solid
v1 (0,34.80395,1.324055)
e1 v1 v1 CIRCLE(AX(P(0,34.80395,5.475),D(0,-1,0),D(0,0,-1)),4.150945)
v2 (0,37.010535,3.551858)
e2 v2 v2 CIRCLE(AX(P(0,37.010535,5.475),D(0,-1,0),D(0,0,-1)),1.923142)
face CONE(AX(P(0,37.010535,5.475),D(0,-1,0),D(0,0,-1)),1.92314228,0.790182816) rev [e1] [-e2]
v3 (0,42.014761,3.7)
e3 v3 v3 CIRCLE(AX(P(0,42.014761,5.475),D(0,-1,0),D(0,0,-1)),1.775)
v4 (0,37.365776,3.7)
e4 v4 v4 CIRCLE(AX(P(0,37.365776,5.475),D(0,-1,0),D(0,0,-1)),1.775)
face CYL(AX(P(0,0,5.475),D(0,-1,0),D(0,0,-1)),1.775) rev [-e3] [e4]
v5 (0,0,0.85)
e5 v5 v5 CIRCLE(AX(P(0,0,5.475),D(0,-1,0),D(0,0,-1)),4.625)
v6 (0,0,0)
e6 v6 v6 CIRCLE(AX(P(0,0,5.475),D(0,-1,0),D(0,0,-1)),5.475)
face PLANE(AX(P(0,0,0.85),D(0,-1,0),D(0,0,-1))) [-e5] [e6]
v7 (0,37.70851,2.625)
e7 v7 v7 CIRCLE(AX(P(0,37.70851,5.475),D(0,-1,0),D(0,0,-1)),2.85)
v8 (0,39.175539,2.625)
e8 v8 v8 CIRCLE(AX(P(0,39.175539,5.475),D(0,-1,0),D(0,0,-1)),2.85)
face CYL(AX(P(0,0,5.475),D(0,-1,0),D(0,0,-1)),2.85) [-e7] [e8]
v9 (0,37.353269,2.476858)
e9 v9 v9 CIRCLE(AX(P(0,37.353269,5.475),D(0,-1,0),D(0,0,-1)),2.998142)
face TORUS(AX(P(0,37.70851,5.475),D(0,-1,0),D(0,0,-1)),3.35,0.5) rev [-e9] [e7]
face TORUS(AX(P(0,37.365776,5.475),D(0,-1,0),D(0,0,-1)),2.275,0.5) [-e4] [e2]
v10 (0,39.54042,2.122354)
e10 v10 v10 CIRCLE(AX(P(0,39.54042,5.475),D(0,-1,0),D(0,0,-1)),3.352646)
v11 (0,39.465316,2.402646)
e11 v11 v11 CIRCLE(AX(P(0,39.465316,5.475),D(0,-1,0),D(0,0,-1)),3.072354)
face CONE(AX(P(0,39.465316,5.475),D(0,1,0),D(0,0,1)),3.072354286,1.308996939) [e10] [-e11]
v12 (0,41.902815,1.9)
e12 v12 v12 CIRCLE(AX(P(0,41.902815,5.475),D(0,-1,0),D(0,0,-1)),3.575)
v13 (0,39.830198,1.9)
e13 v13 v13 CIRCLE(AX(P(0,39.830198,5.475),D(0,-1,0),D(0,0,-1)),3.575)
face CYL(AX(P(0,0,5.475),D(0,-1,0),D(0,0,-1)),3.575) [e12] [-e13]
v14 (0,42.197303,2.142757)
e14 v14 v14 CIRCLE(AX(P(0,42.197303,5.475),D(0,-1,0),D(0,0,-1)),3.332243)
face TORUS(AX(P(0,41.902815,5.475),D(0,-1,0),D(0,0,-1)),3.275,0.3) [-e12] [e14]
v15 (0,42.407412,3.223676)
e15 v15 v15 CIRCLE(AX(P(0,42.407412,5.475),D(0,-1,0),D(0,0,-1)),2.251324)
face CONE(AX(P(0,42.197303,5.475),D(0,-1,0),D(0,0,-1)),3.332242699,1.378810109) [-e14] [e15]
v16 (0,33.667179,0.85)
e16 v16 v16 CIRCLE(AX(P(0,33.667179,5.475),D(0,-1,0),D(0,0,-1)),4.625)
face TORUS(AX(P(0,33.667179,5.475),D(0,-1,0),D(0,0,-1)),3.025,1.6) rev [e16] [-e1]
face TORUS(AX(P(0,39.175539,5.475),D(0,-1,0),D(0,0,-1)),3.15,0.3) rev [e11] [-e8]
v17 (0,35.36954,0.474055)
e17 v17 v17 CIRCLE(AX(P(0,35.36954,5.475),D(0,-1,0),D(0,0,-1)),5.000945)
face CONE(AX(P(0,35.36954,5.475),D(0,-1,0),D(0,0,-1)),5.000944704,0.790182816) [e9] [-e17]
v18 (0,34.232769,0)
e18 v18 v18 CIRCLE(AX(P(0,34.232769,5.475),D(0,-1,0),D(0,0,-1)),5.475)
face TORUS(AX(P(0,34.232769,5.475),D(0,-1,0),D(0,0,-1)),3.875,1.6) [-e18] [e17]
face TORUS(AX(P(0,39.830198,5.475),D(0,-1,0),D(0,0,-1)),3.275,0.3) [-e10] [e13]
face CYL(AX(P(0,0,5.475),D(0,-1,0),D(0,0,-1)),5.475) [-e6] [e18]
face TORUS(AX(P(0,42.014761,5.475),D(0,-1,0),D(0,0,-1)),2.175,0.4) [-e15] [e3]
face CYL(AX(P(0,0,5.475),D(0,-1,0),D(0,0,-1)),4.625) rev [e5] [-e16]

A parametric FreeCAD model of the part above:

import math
import FreeCAD as App
import Part
import Sketcher

V = App.Vector
Q = App.Units.Quantity

doc = App.newDocument("Part")
body = doc.addObject("PartDesign::Body", "Body")

# Sketch on YZ plane
sketch1 = body.newObject("Sketcher::SketchObject", "Sketch")
sketch1.AttachmentSupport = (doc.getObject("YZ_Plane"), [""])
sketch1.MapMode = "FlatFace"
sketch1.addGeometry(Part.LineSegment(V(0, 0, 0), V(34.23, 0, 0)), False)
sketch1.addGeometry(Part.ArcOfCircle(Part.Circle(V(34.23, 1.6, 0), V(0, 0, 1), 1.6), math.radians(-90), math.radians(-45)), False)
sketch1.addGeometry(Part.LineSegment(V(35.37, 0.47, 0), V(37.35, 2.48, 0)), False)
sketch1.addGeometry(Part.ArcOfCircle(Part.Circle(V(37.71, 2.13, 0), V(0, 0, 1), 0.5), math.radians(90), math.radians(135)), False)
sketch1.addGeometry(Part.LineSegment(V(37.71, 2.62, 0), V(39.18, 2.62, 0)), False)
sketch1.addGeometry(Part.ArcOfCircle(Part.Circle(V(39.18, 2.33, 0), V(0, 0, 1), 0.3), math.radians(15), math.radians(90)), False)
sketch1.addGeometry(Part.LineSegment(V(39.47, 2.4, 0), V(39.54, 2.12, 0)), False)
sketch1.addGeometry(Part.ArcOfCircle(Part.Circle(V(39.83, 2.2, 0), V(0, 0, 1), 0.3), math.radians(-165), math.radians(-90)), False)
sketch1.addGeometry(Part.LineSegment(V(39.83, 1.9, 0), V(41.9, 1.9, 0)), False)
sketch1.addGeometry(Part.ArcOfCircle(Part.Circle(V(41.9, 2.2, 0), V(0, 0, 1), 0.3), math.radians(-90), math.radians(-11)), False)
sketch1.addGeometry(Part.LineSegment(V(42.2, 2.14, 0), V(42.41, 3.22, 0)), False)
sketch1.addGeometry(Part.ArcOfCircle(Part.Circle(V(42.01, 3.3, 0), V(0, 0, 1), 0.4), math.radians(-11), math.radians(90)), False)
sketch1.addGeometry(Part.LineSegment(V(42.01, 3.7, 0), V(37.37, 3.7, 0)), False)
sketch1.addGeometry(Part.ArcOfCircle(Part.Circle(V(37.37, 3.2, 0), V(0, 0, 1), 0.5), math.radians(90), math.radians(135)), False)
sketch1.addGeometry(Part.LineSegment(V(37.01, 3.55, 0), V(34.8, 1.32, 0)), False)
sketch1.addGeometry(Part.ArcOfCircle(Part.Circle(V(33.67, 2.45, 0), V(0, 0, 1), 1.6), math.radians(-90), math.radians(-45)), False)
sketch1.addGeometry(Part.LineSegment(V(33.67, 0.85, 0), V(0, 0.85, 0)), False)
sketch1.addGeometry(Part.LineSegment(V(0, 0.85, 0), V(0, 0, 0)), False)
sketch1.addGeometry(Part.LineSegment(V(0, 5.47, 0), V(42.41, 5.47, 0)), True)  # axis
sketch1.addConstraint(Sketcher.Constraint("Tangent", 0, 2, 1, 1))
sketch1.addConstraint(Sketcher.Constraint("Tangent", 1, 2, 2, 1))
sketch1.addConstraint(Sketcher.Constraint("Tangent", 2, 2, 3, 2))
sketch1.addConstraint(Sketcher.Constraint("Tangent", 3, 1, 4, 1))
sketch1.addConstraint(Sketcher.Constraint("Tangent", 4, 2, 5, 2))
sketch1.addConstraint(Sketcher.Constraint("Tangent", 5, 1, 6, 1))
sketch1.addConstraint(Sketcher.Constraint("Tangent", 6, 2, 7, 1))
sketch1.addConstraint(Sketcher.Constraint("Tangent", 7, 2, 8, 1))
sketch1.addConstraint(Sketcher.Constraint("Tangent", 8, 2, 9, 1))
sketch1.addConstraint(Sketcher.Constraint("Tangent", 9, 2, 10, 1))
sketch1.addConstraint(Sketcher.Constraint("Tangent", 10, 2, 11, 1))
sketch1.addConstraint(Sketcher.Constraint("Tangent", 11, 2, 12, 1))
sketch1.addConstraint(Sketcher.Constraint("Tangent", 12, 2, 13, 1))
sketch1.addConstraint(Sketcher.Constraint("Tangent", 13, 2, 14, 1))
sketch1.addConstraint(Sketcher.Constraint("Tangent", 14, 2, 15, 2))
sketch1.addConstraint(Sketcher.Constraint("Tangent", 15, 1, 16, 1))
sketch1.addConstraint(Sketcher.Constraint("Coincident", 16, 2, 17, 1))
sketch1.addConstraint(Sketcher.Constraint("Coincident", 17, 2, 0, 1))
sketch1.addConstraint(Sketcher.Constraint("Horizontal", 0))
sketch1.addConstraint(Sketcher.Constraint("Horizontal", 4))
sketch1.addConstraint(Sketcher.Constraint("Horizontal", 8))
sketch1.addConstraint(Sketcher.Constraint("Horizontal", 12))
sketch1.addConstraint(Sketcher.Constraint("Horizontal", 16))
sketch1.addConstraint(Sketcher.Constraint("Vertical", 17))
sketch1.addConstraint(Sketcher.Constraint("Horizontal", 18))
sketch1.addConstraint(Sketcher.Constraint("Coincident", 17, 2, -1, 1))
sketch1.addConstraint(Sketcher.Constraint("Equal", 5, 7))
sketch1.addConstraint(Sketcher.Constraint("Equal", 7, 9))
sketch1.addConstraint(Sketcher.Constraint("Equal", 3, 13))
sketch1.addConstraint(Sketcher.Constraint("Equal", 1, 15))
sketch1.addConstraint(Sketcher.Constraint("PointOnObject", 18, 1, -2))
sketch1.addConstraint(Sketcher.Constraint("Parallel", 2, 14))
sketch1.addConstraint(Sketcher.Constraint("Vertical", 10, 2, 18, 2))
sketch1.addConstraint(Sketcher.Constraint("Radius", 1, Q("1.6 mm")))
sketch1.addConstraint(Sketcher.Constraint("Radius", 3, Q("0.5 mm")))
sketch1.addConstraint(Sketcher.Constraint("Radius", 5, Q("0.3 mm")))
sketch1.addConstraint(Sketcher.Constraint("Radius", 11, Q("0.4 mm")))
sketch1.addConstraint(Sketcher.Constraint("Angle", 6, Q("-75 deg")))
sketch1.addConstraint(Sketcher.Constraint("Angle", 10, Q("79 deg")))
sketch1.addConstraint(Sketcher.Constraint("DistanceY", 7, 3, 13, 3, Q("1 mm")))
sketch1.addConstraint(Sketcher.Constraint("DistanceY", 17, 2, 17, 1, Q("0.85 mm")))
sketch1.addConstraint(Sketcher.Constraint("DistanceY", -1, 1, 7, 3, Q("2.2 mm")))
sketch1.addConstraint(Sketcher.Constraint("DistanceY", -1, 1, 3, 3, Q("2.125 mm")))
sketch1.addConstraint(Sketcher.Constraint("DistanceY", -1, 1, 18, 1, Q("5.475 mm")))
sketch1.addConstraint(Sketcher.Constraint("DistanceX", 0, 1, 0, 2, Q("34.232769 mm")))
sketch1.addConstraint(Sketcher.Constraint("DistanceX", 4, 1, 4, 2, Q("1.467029 mm")))
sketch1.addConstraint(Sketcher.Constraint("DistanceX", 16, 2, 16, 1, Q("33.667179 mm")))
sketch1.addConstraint(Sketcher.Constraint("DistanceX", -1, 1, 7, 3, Q("39.830198 mm")))
sketch1.addConstraint(Sketcher.Constraint("DistanceX", 8, 1, 8, 2, Q("2.072616 mm")))
revolution = body.newObject("PartDesign::Revolution", "Revolution")
revolution.Profile = sketch1
revolution.ReferenceAxis = (sketch1, ["Axis0"])
revolution.Angle = 360

doc.recompute()
